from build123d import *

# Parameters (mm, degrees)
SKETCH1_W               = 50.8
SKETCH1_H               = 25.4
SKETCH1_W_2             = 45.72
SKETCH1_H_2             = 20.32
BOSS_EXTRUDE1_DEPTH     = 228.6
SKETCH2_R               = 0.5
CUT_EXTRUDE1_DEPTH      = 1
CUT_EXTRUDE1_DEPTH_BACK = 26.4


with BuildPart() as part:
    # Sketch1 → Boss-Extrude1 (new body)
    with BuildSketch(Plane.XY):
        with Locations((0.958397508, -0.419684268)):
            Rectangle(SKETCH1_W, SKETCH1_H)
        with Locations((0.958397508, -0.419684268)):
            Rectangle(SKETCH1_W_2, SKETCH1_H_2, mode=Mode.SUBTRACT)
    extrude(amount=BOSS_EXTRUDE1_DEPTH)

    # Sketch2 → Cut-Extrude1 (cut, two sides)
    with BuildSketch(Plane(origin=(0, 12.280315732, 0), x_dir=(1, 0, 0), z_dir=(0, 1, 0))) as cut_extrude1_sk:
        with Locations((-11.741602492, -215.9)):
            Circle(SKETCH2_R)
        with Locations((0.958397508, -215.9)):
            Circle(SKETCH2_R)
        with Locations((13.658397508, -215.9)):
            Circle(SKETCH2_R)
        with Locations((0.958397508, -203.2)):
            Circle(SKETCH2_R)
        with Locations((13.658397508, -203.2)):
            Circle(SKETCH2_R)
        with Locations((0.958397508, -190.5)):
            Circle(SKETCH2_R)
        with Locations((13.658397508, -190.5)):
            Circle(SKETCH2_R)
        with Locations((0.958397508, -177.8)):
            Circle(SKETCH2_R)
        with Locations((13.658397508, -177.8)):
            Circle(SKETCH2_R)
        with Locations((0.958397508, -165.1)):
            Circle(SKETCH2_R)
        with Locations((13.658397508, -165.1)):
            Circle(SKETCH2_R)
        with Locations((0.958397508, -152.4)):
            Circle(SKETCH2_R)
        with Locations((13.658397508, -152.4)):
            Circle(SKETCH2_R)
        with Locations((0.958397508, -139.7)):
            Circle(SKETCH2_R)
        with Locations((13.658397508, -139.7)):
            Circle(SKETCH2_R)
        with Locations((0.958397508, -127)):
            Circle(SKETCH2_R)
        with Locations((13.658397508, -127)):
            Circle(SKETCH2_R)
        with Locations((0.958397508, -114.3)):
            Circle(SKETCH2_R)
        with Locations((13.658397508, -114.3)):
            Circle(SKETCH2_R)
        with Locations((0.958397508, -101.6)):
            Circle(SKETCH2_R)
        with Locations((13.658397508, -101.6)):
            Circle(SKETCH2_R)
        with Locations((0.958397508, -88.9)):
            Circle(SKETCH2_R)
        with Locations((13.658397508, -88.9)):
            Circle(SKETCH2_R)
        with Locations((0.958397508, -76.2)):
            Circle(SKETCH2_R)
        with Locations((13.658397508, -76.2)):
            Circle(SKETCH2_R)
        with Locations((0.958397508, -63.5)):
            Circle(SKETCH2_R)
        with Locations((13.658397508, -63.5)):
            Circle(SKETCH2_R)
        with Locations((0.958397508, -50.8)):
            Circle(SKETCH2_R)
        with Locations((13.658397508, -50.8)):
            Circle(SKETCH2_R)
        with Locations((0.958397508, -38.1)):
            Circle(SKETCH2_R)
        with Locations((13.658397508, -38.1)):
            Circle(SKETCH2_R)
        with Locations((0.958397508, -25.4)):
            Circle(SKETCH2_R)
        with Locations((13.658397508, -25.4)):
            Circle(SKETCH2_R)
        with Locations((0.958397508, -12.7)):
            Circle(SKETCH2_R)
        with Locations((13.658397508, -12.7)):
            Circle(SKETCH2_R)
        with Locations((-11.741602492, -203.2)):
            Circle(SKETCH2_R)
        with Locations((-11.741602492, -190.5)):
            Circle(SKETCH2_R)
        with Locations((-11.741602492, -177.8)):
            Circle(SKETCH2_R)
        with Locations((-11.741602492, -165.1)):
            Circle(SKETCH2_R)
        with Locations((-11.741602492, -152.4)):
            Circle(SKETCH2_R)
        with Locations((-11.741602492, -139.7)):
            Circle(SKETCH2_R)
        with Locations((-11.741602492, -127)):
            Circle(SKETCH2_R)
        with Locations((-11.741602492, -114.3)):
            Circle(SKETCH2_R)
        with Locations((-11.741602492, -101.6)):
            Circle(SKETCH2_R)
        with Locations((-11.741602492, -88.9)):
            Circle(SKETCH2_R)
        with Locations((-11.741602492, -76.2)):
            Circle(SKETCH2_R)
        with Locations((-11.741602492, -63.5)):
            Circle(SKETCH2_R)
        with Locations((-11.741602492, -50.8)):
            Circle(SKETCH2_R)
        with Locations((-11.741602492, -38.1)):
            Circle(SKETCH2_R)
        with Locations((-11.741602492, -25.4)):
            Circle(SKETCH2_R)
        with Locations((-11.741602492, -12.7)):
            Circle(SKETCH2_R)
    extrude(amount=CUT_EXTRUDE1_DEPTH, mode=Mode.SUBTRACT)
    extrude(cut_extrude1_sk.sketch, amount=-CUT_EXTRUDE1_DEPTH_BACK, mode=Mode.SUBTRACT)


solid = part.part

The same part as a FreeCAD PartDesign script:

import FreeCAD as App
import Part
import Sketcher
from FreeCAD import Vector
Q = App.Units.Quantity

doc = App.newDocument("Part")
body = doc.addObject("PartDesign::Body", "Body")

# Sketch on XY plane
sketch1 = body.newObject("Sketcher::SketchObject", "Sketch")
sketch1.AttachmentSupport = (doc.getObject("XY_Plane"), [""])
sketch1.MapMode = "FlatFace"
sketch1.addGeometry([
    Part.LineSegment(Vector(-24.441602, 12.280316, 0), Vector(-24.441602, -13.119684, 0)),  # 0
    Part.LineSegment(Vector(-24.441602, -13.119684, 0), Vector(26.358398, -13.119684, 0)),  # 1
    Part.LineSegment(Vector(26.358398, -13.119684, 0), Vector(26.358398, 12.280316, 0)),  # 2
    Part.LineSegment(Vector(26.358398, 12.280316, 0), Vector(-24.441602, 12.280316, 0)),  # 3
    Part.LineSegment(Vector(23.818398, -10.579684, 0), Vector(-21.901602, -10.579684, 0)),  # 4
    Part.LineSegment(Vector(-21.901602, -10.579684, 0), Vector(-21.901602, 9.740316, 0)),  # 5
    Part.LineSegment(Vector(-21.901602, 9.740316, 0), Vector(23.818398, 9.740316, 0)),  # 6
    Part.LineSegment(Vector(23.818398, 9.740316, 0), Vector(23.818398, -10.579684, 0)),  # 7
], False)
sketch1.addConstraint([
    Sketcher.Constraint("Coincident", 0, 2, 1, 1),
    Sketcher.Constraint("Coincident", 1, 2, 2, 1),
    Sketcher.Constraint("Coincident", 2, 2, 3, 1),
    Sketcher.Constraint("Coincident", 3, 2, 0, 1),
    Sketcher.Constraint("Coincident", 4, 2, 5, 1),
    Sketcher.Constraint("Coincident", 5, 2, 6, 1),
    Sketcher.Constraint("Coincident", 6, 2, 7, 1),
    Sketcher.Constraint("Coincident", 7, 2, 4, 1),
    Sketcher.Constraint("Vertical", 0),
    Sketcher.Constraint("Horizontal", 1),
    Sketcher.Constraint("Vertical", 2),
    Sketcher.Constraint("Horizontal", 3),
    Sketcher.Constraint("Horizontal", 4),
    Sketcher.Constraint("Vertical", 5),
    Sketcher.Constraint("Horizontal", 6),
    Sketcher.Constraint("Vertical", 7),
    Sketcher.Constraint("DistanceX", 1, 1, 1, 2, Q("2 in")),
    Sketcher.Constraint("DistanceY", 0, 2, 0, 1, Q("1 in")),
    Sketcher.Constraint("DistanceX", 4, 2, 4, 1, Q("1.8 in")),
    Sketcher.Constraint("DistanceY", 5, 1, 5, 2, Q("0.8 in")),
    Sketcher.Constraint("DistanceX", 0, 2, 4, 2, Q("0.1 in")),
    Sketcher.Constraint("DistanceY", 0, 2, 4, 2, Q("0.1 in")),
    Sketcher.Constraint("DistanceX", 0, 2, -1, 1, Q("24.441602 mm")),
    Sketcher.Constraint("DistanceY", 0, 2, -1, 1, Q("13.119684 mm")),
])
pad1 = body.newObject("PartDesign::Pad", "Pad")
pad1.Profile = sketch1
pad1.Length = Q("9 in")

# Sketch on XZ plane
sketch2 = body.newObject("Sketcher::SketchObject", "Sketch001")
sketch2.AttachmentSupport = (doc.getObject("XZ_Plane"), [""])
sketch2.MapMode = "FlatFace"
sketch2.AttachmentOffset = App.Placement(Vector(0, 0, -12.280316), App.Rotation())
sketch2.addGeometry([
    Part.Circle(Vector(-11.741602, 215.9, 0), Vector(0, 0, 1), 0.5),  # 0
    Part.Circle(Vector(0.958398, 215.9, 0), Vector(0, 0, 1), 0.5),  # 1
    Part.Circle(Vector(13.658398, 215.9, 0), Vector(0, 0, 1), 0.5),  # 2
    Part.Circle(Vector(0.958398, 203.2, 0), Vector(0, 0, 1), 0.5),  # 3
    Part.Circle(Vector(13.658398, 203.2, 0), Vector(0, 0, 1), 0.5),  # 4
    Part.Circle(Vector(0.958398, 190.5, 0), Vector(0, 0, 1), 0.5),  # 5
    Part.Circle(Vector(13.658398, 190.5, 0), Vector(0, 0, 1), 0.5),  # 6
    Part.Circle(Vector(0.958398, 177.8, 0), Vector(0, 0, 1), 0.5),  # 7
    Part.Circle(Vector(13.658398, 177.8, 0), Vector(0, 0, 1), 0.5),  # 8
    Part.Circle(Vector(0.958398, 165.1, 0), Vector(0, 0, 1), 0.5),  # 9
    Part.Circle(Vector(13.658398, 165.1, 0), Vector(0, 0, 1), 0.5),  # 10
    Part.Circle(Vector(0.958398, 152.4, 0), Vector(0, 0, 1), 0.5),  # 11
    Part.Circle(Vector(13.658398, 152.4, 0), Vector(0, 0, 1), 0.5),  # 12
    Part.Circle(Vector(0.958398, 139.7, 0), Vector(0, 0, 1), 0.5),  # 13
    Part.Circle(Vector(13.658398, 139.7, 0), Vector(0, 0, 1), 0.5),  # 14
    Part.Circle(Vector(0.958398, 127, 0), Vector(0, 0, 1), 0.5),  # 15
    Part.Circle(Vector(13.658398, 127, 0), Vector(0, 0, 1), 0.5),  # 16
    Part.Circle(Vector(0.958398, 114.3, 0), Vector(0, 0, 1), 0.5),  # 17
    Part.Circle(Vector(13.658398, 114.3, 0), Vector(0, 0, 1), 0.5),  # 18
    Part.Circle(Vector(0.958398, 101.6, 0), Vector(0, 0, 1), 0.5),  # 19
    Part.Circle(Vector(13.658398, 101.6, 0), Vector(0, 0, 1), 0.5),  # 20
    Part.Circle(Vector(0.958398, 88.9, 0), Vector(0, 0, 1), 0.5),  # 21
    Part.Circle(Vector(13.658398, 88.9, 0), Vector(0, 0, 1), 0.5),  # 22
    Part.Circle(Vector(0.958398, 76.2, 0), Vector(0, 0, 1), 0.5),  # 23
    Part.Circle(Vector(13.658398, 76.2, 0), Vector(0, 0, 1), 0.5),  # 24
    Part.Circle(Vector(0.958398, 63.5, 0), Vector(0, 0, 1), 0.5),  # 25
    Part.Circle(Vector(13.658398, 63.5, 0), Vector(0, 0, 1), 0.5),  # 26
    Part.Circle(Vector(0.958398, 50.8, 0), Vector(0, 0, 1), 0.5),  # 27
    Part.Circle(Vector(13.658398, 50.8, 0), Vector(0, 0, 1), 0.5),  # 28
    Part.Circle(Vector(0.958398, 38.1, 0), Vector(0, 0, 1), 0.5),  # 29
    Part.Circle(Vector(13.658398, 38.1, 0), Vector(0, 0, 1), 0.5),  # 30
    Part.Circle(Vector(0.958398, 25.4, 0), Vector(0, 0, 1), 0.5),  # 31
    Part.Circle(Vector(13.658398, 25.4, 0), Vector(0, 0, 1), 0.5),  # 32
    Part.Circle(Vector(0.958398, 12.7, 0), Vector(0, 0, 1), 0.5),  # 33
    Part.Circle(Vector(13.658398, 12.7, 0), Vector(0, 0, 1), 0.5),  # 34
    Part.Circle(Vector(-11.741602, 203.2, 0), Vector(0, 0, 1), 0.5),  # 35
    Part.Circle(Vector(-11.741602, 190.5, 0), Vector(0, 0, 1), 0.5),  # 36
    Part.Circle(Vector(-11.741602, 177.8, 0), Vector(0, 0, 1), 0.5),  # 37
    Part.Circle(Vector(-11.741602, 165.1, 0), Vector(0, 0, 1), 0.5),  # 38
    Part.Circle(Vector(-11.741602, 152.4, 0), Vector(0, 0, 1), 0.5),  # 39
    Part.Circle(Vector(-11.741602, 139.7, 0), Vector(0, 0, 1), 0.5),  # 40
    Part.Circle(Vector(-11.741602, 127, 0), Vector(0, 0, 1), 0.5),  # 41
    Part.Circle(Vector(-11.741602, 114.3, 0), Vector(0, 0, 1), 0.5),  # 42
    Part.Circle(Vector(-11.741602, 101.6, 0), Vector(0, 0, 1), 0.5),  # 43
    Part.Circle(Vector(-11.741602, 88.9, 0), Vector(0, 0, 1), 0.5),  # 44
    Part.Circle(Vector(-11.741602, 76.2, 0), Vector(0, 0, 1), 0.5),  # 45
    Part.Circle(Vector(-11.741602, 63.5, 0), Vector(0, 0, 1), 0.5),  # 46
    Part.Circle(Vector(-11.741602, 50.8, 0), Vector(0, 0, 1), 0.5),  # 47
    Part.Circle(Vector(-11.741602, 38.1, 0), Vector(0, 0, 1), 0.5),  # 48
    Part.Circle(Vector(-11.741602, 25.4, 0), Vector(0, 0, 1), 0.5),  # 49
    Part.Circle(Vector(-11.741602, 12.7, 0), Vector(0, 0, 1), 0.5),  # 50
], False)
sketch2.addConstraint([
    Sketcher.Constraint("Equal", 0, 1),
    Sketcher.Constraint("Equal", 1, 2),
    Sketcher.Constraint("Equal", 2, 3),
    Sketcher.Constraint("Equal", 3, 4),
    Sketcher.Constraint("Equal", 4, 5),
    Sketcher.Constraint("Equal", 5, 6),
    Sketcher.Constraint("Equal", 6, 7),
    Sketcher.Constraint("Equal", 7, 8),
    Sketcher.Constraint("Equal", 8, 9),
    Sketcher.Constraint("Equal", 9, 10),
    Sketcher.Constraint("Equal", 10, 11),
    Sketcher.Constraint("Equal", 11, 12),
    Sketcher.Constraint("Equal", 12, 13),
    Sketcher.Constraint("Equal", 13, 14),
    Sketcher.Constraint("Equal", 14, 15),
    Sketcher.Constraint("Equal", 15, 16),
    Sketcher.Constraint("Equal", 16, 17),
    Sketcher.Constraint("Equal", 17, 18),
    Sketcher.Constraint("Equal", 18, 19),
    Sketcher.Constraint("Equal", 19, 20),
    Sketcher.Constraint("Equal", 20, 21),
    Sketcher.Constraint("Equal", 21, 22),
    Sketcher.Constraint("Equal", 22, 23),
    Sketcher.Constraint("Equal", 23, 24),
    Sketcher.Constraint("Equal", 24, 25),
    Sketcher.Constraint("Equal", 25, 26),
    Sketcher.Constraint("Equal", 26, 27),
    Sketcher.Constraint("Equal", 27, 28),
    Sketcher.Constraint("Equal", 28, 29),
    Sketcher.Constraint("Equal", 29, 30),
    Sketcher.Constraint("Equal", 30, 31),
    Sketcher.Constraint("Equal", 31, 32),
    Sketcher.Constraint("Equal", 32, 33),
    Sketcher.Constraint("Equal", 33, 34),
    Sketcher.Constraint("Equal", 34, 35),
    Sketcher.Constraint("Equal", 35, 36),
    Sketcher.Constraint("Equal", 36, 37),
    Sketcher.Constraint("Equal", 37, 38),
    Sketcher.Constraint("Equal", 38, 39),
    Sketcher.Constraint("Equal", 39, 40),
    Sketcher.Constraint("Equal", 40, 41),
    Sketcher.Constraint("Equal", 41, 42),
    Sketcher.Constraint("Equal", 42, 43),
    Sketcher.Constraint("Equal", 43, 44),
    Sketcher.Constraint("Equal", 44, 45),
    Sketcher.Constraint("Equal", 45, 46),
    Sketcher.Constraint("Equal", 46, 47),
    Sketcher.Constraint("Equal", 47, 48),
    Sketcher.Constraint("Equal", 48, 49),
    Sketcher.Constraint("Equal", 49, 50),
    Sketcher.Constraint("Horizontal", 0, 3, 1, 3),
    Sketcher.Constraint("Horizontal", 1, 3, 2, 3),
    Sketcher.Constraint("Horizontal", 3, 3, 4, 3),
    Sketcher.Constraint("Horizontal", 5, 3, 6, 3),
    Sketcher.Constraint("Horizontal", 7, 3, 8, 3),
    Sketcher.Constraint("Horizontal", 9, 3, 10, 3),
    Sketcher.Constraint("Horizontal", 11, 3, 12, 3),
    Sketcher.Constraint("Horizontal", 13, 3, 14, 3),
    Sketcher.Constraint("Horizontal", 15, 3, 16, 3),
    Sketcher.Constraint("Horizontal", 17, 3, 18, 3),
    Sketcher.Constraint("Horizontal", 19, 3, 20, 3),
    Sketcher.Constraint("Horizontal", 21, 3, 22, 3),
    Sketcher.Constraint("Horizontal", 23, 3, 24, 3),
    Sketcher.Constraint("Horizontal", 25, 3, 26, 3),
    Sketcher.Constraint("Horizontal", 27, 3, 28, 3),
    Sketcher.Constraint("Horizontal", 29, 3, 30, 3),
    Sketcher.Constraint("Horizontal", 31, 3, 32, 3),
    Sketcher.Constraint("Horizontal", 33, 3, 34, 3),
    Sketcher.Constraint("Horizontal", 4, 3, 35, 3),
    Sketcher.Constraint("Horizontal", 6, 3, 36, 3),
    Sketcher.Constraint("Horizontal", 8, 3, 37, 3),
    Sketcher.Constraint("Horizontal", 10, 3, 38, 3),
    Sketcher.Constraint("Horizontal", 12, 3, 39, 3),
    Sketcher.Constraint("Horizontal", 14, 3, 40, 3),
    Sketcher.Constraint("Horizontal", 16, 3, 41, 3),
    Sketcher.Constraint("Horizontal", 18, 3, 42, 3),
    Sketcher.Constraint("Horizontal", 20, 3, 43, 3),
    Sketcher.Constraint("Horizontal", 22, 3, 44, 3),
    Sketcher.Constraint("Horizontal", 24, 3, 45, 3),
    Sketcher.Constraint("Horizontal", 26, 3, 46, 3),
    Sketcher.Constraint("Horizontal", 28, 3, 47, 3),
    Sketcher.Constraint("Horizontal", 30, 3, 48, 3),
    Sketcher.Constraint("Horizontal", 32, 3, 49, 3),
    Sketcher.Constraint("Horizontal", 34, 3, 50, 3),
    Sketcher.Constraint("Vertical", 1, 3, 3, 3),
    Sketcher.Constraint("Vertical", 2, 3, 4, 3),
    Sketcher.Constraint("Vertical", 3, 3, 5, 3),
    Sketcher.Constraint("Vertical", 4, 3, 6, 3),
    Sketcher.Constraint("Vertical", 5, 3, 7, 3),
    Sketcher.Constraint("Vertical", 6, 3, 8, 3),
    Sketcher.Constraint("Vertical", 7, 3, 9, 3),
    Sketcher.Constraint("Vertical", 8, 3, 10, 3),
    Sketcher.Constraint("Vertical", 9, 3, 11, 3),
    Sketcher.Constraint("Vertical", 10, 3, 12, 3),
    Sketcher.Constraint("Vertical", 11, 3, 13, 3),
    Sketcher.Constraint("Vertical", 12, 3, 14, 3),
    Sketcher.Constraint("Vertical", 13, 3, 15, 3),
    Sketcher.Constraint("Vertical", 14, 3, 16, 3),
    Sketcher.Constraint("Vertical", 15, 3, 17, 3),
    Sketcher.Constraint("Vertical", 16, 3, 18, 3),
    Sketcher.Constraint("Vertical", 17, 3, 19, 3),
    Sketcher.Constraint("Vertical", 18, 3, 20, 3),
    Sketcher.Constraint("Vertical", 19, 3, 21, 3),
    Sketcher.Constraint("Vertical", 20, 3, 22, 3),
    Sketcher.Constraint("Vertical", 21, 3, 23, 3),
    Sketcher.Constraint("Vertical", 22, 3, 24, 3),
    Sketcher.Constraint("Vertical", 23, 3, 25, 3),
    Sketcher.Constraint("Vertical", 24, 3, 26, 3),
    Sketcher.Constraint("Vertical", 25, 3, 27, 3),
    Sketcher.Constraint("Vertical", 26, 3, 28, 3),
    Sketcher.Constraint("Vertical", 27, 3, 29, 3),
    Sketcher.Constraint("Vertical", 28, 3, 30, 3),
    Sketcher.Constraint("Vertical", 29, 3, 31, 3),
    Sketcher.Constraint("Vertical", 30, 3, 32, 3),
    Sketcher.Constraint("Vertical", 31, 3, 33, 3),
    Sketcher.Constraint("Vertical", 32, 3, 34, 3),
    Sketcher.Constraint("Vertical", 0, 3, 35, 3),
    Sketcher.Constraint("Vertical", 35, 3, 36, 3),
    Sketcher.Constraint("Vertical", 36, 3, 37, 3),
    Sketcher.Constraint("Vertical", 37, 3, 38, 3),
    Sketcher.Constraint("Vertical", 38, 3, 39, 3),
    Sketcher.Constraint("Vertical", 39, 3, 40, 3),
    Sketcher.Constraint("Vertical", 40, 3, 41, 3),
    Sketcher.Constraint("Vertical", 41, 3, 42, 3),
    Sketcher.Constraint("Vertical", 42, 3, 43, 3),
    Sketcher.Constraint("Vertical", 43, 3, 44, 3),
    Sketcher.Constraint("Vertical", 44, 3, 45, 3),
    Sketcher.Constraint("Vertical", 45, 3, 46, 3),
    Sketcher.Constraint("Vertical", 46, 3, 47, 3),
    Sketcher.Constraint("Vertical", 47, 3, 48, 3),
    Sketcher.Constraint("Vertical", 48, 3, 49, 3),
    Sketcher.Constraint("Vertical", 49, 3, 50, 3),
    Sketcher.Constraint("DistanceY", -1, 1, 3, 3, Q("8 in")),
    Sketcher.Constraint("DistanceY", -1, 1, 7, 3, Q("7 in")),
    Sketcher.Constraint("DistanceY", -1, 1, 11, 3, Q("6 in")),
    Sketcher.Constraint("DistanceY", -1, 1, 15, 3, Q("5 in")),
    Sketcher.Constraint("DistanceY", -1, 1, 19, 3, Q("4 in")),
    Sketcher.Constraint("DistanceY", -1, 1, 23, 3, Q("3 in")),
    Sketcher.Constraint("DistanceY", -1, 1, 27, 3, Q("2 in")),
    Sketcher.Constraint("DistanceY", -1, 1, 31, 3, Q("1 in")),
    Sketcher.Constraint("DistanceX", 0, 3, 2, 3, Q("1 in")),
    Sketcher.Constraint("DistanceY", 5, 3, 1, 3, Q("1 in")),
    Sketcher.Constraint("DistanceY", 9, 3, 5, 3, Q("1 in")),
    Sketcher.Constraint("DistanceY", 13, 3, 9, 3, Q("1 in")),
    Sketcher.Constraint("DistanceY", 17, 3, 13, 3, Q("1 in")),
    Sketcher.Constraint("DistanceY", 21, 3, 17, 3, Q("1 in")),
    Sketcher.Constraint("DistanceY", 25, 3, 21, 3, Q("1 in")),
    Sketcher.Constraint("DistanceY", 29, 3, 25, 3, Q("1 in")),
    Sketcher.Constraint("DistanceY", 33, 3, 29, 3, Q("1 in")),
    Sketcher.Constraint("DistanceY", -1, 1, 0, 3, Q("8.5 in")),
    Sketcher.Constraint("DistanceX", 0, 3, 1, 3, Q("0.5 in")),
    Sketcher.Constraint("Diameter", 0, Q("1 mm")),
    Sketcher.Constraint("DistanceX", 0, 3, -1, 1, Q("11.741602 mm")),
])
pocket1 = body.newObject("PartDesign::Pocket", "Pocket")
pocket1.Profile = sketch2
pocket1.Type = "ThroughAll"
pocket1.Midplane = True

doc.recompute()
